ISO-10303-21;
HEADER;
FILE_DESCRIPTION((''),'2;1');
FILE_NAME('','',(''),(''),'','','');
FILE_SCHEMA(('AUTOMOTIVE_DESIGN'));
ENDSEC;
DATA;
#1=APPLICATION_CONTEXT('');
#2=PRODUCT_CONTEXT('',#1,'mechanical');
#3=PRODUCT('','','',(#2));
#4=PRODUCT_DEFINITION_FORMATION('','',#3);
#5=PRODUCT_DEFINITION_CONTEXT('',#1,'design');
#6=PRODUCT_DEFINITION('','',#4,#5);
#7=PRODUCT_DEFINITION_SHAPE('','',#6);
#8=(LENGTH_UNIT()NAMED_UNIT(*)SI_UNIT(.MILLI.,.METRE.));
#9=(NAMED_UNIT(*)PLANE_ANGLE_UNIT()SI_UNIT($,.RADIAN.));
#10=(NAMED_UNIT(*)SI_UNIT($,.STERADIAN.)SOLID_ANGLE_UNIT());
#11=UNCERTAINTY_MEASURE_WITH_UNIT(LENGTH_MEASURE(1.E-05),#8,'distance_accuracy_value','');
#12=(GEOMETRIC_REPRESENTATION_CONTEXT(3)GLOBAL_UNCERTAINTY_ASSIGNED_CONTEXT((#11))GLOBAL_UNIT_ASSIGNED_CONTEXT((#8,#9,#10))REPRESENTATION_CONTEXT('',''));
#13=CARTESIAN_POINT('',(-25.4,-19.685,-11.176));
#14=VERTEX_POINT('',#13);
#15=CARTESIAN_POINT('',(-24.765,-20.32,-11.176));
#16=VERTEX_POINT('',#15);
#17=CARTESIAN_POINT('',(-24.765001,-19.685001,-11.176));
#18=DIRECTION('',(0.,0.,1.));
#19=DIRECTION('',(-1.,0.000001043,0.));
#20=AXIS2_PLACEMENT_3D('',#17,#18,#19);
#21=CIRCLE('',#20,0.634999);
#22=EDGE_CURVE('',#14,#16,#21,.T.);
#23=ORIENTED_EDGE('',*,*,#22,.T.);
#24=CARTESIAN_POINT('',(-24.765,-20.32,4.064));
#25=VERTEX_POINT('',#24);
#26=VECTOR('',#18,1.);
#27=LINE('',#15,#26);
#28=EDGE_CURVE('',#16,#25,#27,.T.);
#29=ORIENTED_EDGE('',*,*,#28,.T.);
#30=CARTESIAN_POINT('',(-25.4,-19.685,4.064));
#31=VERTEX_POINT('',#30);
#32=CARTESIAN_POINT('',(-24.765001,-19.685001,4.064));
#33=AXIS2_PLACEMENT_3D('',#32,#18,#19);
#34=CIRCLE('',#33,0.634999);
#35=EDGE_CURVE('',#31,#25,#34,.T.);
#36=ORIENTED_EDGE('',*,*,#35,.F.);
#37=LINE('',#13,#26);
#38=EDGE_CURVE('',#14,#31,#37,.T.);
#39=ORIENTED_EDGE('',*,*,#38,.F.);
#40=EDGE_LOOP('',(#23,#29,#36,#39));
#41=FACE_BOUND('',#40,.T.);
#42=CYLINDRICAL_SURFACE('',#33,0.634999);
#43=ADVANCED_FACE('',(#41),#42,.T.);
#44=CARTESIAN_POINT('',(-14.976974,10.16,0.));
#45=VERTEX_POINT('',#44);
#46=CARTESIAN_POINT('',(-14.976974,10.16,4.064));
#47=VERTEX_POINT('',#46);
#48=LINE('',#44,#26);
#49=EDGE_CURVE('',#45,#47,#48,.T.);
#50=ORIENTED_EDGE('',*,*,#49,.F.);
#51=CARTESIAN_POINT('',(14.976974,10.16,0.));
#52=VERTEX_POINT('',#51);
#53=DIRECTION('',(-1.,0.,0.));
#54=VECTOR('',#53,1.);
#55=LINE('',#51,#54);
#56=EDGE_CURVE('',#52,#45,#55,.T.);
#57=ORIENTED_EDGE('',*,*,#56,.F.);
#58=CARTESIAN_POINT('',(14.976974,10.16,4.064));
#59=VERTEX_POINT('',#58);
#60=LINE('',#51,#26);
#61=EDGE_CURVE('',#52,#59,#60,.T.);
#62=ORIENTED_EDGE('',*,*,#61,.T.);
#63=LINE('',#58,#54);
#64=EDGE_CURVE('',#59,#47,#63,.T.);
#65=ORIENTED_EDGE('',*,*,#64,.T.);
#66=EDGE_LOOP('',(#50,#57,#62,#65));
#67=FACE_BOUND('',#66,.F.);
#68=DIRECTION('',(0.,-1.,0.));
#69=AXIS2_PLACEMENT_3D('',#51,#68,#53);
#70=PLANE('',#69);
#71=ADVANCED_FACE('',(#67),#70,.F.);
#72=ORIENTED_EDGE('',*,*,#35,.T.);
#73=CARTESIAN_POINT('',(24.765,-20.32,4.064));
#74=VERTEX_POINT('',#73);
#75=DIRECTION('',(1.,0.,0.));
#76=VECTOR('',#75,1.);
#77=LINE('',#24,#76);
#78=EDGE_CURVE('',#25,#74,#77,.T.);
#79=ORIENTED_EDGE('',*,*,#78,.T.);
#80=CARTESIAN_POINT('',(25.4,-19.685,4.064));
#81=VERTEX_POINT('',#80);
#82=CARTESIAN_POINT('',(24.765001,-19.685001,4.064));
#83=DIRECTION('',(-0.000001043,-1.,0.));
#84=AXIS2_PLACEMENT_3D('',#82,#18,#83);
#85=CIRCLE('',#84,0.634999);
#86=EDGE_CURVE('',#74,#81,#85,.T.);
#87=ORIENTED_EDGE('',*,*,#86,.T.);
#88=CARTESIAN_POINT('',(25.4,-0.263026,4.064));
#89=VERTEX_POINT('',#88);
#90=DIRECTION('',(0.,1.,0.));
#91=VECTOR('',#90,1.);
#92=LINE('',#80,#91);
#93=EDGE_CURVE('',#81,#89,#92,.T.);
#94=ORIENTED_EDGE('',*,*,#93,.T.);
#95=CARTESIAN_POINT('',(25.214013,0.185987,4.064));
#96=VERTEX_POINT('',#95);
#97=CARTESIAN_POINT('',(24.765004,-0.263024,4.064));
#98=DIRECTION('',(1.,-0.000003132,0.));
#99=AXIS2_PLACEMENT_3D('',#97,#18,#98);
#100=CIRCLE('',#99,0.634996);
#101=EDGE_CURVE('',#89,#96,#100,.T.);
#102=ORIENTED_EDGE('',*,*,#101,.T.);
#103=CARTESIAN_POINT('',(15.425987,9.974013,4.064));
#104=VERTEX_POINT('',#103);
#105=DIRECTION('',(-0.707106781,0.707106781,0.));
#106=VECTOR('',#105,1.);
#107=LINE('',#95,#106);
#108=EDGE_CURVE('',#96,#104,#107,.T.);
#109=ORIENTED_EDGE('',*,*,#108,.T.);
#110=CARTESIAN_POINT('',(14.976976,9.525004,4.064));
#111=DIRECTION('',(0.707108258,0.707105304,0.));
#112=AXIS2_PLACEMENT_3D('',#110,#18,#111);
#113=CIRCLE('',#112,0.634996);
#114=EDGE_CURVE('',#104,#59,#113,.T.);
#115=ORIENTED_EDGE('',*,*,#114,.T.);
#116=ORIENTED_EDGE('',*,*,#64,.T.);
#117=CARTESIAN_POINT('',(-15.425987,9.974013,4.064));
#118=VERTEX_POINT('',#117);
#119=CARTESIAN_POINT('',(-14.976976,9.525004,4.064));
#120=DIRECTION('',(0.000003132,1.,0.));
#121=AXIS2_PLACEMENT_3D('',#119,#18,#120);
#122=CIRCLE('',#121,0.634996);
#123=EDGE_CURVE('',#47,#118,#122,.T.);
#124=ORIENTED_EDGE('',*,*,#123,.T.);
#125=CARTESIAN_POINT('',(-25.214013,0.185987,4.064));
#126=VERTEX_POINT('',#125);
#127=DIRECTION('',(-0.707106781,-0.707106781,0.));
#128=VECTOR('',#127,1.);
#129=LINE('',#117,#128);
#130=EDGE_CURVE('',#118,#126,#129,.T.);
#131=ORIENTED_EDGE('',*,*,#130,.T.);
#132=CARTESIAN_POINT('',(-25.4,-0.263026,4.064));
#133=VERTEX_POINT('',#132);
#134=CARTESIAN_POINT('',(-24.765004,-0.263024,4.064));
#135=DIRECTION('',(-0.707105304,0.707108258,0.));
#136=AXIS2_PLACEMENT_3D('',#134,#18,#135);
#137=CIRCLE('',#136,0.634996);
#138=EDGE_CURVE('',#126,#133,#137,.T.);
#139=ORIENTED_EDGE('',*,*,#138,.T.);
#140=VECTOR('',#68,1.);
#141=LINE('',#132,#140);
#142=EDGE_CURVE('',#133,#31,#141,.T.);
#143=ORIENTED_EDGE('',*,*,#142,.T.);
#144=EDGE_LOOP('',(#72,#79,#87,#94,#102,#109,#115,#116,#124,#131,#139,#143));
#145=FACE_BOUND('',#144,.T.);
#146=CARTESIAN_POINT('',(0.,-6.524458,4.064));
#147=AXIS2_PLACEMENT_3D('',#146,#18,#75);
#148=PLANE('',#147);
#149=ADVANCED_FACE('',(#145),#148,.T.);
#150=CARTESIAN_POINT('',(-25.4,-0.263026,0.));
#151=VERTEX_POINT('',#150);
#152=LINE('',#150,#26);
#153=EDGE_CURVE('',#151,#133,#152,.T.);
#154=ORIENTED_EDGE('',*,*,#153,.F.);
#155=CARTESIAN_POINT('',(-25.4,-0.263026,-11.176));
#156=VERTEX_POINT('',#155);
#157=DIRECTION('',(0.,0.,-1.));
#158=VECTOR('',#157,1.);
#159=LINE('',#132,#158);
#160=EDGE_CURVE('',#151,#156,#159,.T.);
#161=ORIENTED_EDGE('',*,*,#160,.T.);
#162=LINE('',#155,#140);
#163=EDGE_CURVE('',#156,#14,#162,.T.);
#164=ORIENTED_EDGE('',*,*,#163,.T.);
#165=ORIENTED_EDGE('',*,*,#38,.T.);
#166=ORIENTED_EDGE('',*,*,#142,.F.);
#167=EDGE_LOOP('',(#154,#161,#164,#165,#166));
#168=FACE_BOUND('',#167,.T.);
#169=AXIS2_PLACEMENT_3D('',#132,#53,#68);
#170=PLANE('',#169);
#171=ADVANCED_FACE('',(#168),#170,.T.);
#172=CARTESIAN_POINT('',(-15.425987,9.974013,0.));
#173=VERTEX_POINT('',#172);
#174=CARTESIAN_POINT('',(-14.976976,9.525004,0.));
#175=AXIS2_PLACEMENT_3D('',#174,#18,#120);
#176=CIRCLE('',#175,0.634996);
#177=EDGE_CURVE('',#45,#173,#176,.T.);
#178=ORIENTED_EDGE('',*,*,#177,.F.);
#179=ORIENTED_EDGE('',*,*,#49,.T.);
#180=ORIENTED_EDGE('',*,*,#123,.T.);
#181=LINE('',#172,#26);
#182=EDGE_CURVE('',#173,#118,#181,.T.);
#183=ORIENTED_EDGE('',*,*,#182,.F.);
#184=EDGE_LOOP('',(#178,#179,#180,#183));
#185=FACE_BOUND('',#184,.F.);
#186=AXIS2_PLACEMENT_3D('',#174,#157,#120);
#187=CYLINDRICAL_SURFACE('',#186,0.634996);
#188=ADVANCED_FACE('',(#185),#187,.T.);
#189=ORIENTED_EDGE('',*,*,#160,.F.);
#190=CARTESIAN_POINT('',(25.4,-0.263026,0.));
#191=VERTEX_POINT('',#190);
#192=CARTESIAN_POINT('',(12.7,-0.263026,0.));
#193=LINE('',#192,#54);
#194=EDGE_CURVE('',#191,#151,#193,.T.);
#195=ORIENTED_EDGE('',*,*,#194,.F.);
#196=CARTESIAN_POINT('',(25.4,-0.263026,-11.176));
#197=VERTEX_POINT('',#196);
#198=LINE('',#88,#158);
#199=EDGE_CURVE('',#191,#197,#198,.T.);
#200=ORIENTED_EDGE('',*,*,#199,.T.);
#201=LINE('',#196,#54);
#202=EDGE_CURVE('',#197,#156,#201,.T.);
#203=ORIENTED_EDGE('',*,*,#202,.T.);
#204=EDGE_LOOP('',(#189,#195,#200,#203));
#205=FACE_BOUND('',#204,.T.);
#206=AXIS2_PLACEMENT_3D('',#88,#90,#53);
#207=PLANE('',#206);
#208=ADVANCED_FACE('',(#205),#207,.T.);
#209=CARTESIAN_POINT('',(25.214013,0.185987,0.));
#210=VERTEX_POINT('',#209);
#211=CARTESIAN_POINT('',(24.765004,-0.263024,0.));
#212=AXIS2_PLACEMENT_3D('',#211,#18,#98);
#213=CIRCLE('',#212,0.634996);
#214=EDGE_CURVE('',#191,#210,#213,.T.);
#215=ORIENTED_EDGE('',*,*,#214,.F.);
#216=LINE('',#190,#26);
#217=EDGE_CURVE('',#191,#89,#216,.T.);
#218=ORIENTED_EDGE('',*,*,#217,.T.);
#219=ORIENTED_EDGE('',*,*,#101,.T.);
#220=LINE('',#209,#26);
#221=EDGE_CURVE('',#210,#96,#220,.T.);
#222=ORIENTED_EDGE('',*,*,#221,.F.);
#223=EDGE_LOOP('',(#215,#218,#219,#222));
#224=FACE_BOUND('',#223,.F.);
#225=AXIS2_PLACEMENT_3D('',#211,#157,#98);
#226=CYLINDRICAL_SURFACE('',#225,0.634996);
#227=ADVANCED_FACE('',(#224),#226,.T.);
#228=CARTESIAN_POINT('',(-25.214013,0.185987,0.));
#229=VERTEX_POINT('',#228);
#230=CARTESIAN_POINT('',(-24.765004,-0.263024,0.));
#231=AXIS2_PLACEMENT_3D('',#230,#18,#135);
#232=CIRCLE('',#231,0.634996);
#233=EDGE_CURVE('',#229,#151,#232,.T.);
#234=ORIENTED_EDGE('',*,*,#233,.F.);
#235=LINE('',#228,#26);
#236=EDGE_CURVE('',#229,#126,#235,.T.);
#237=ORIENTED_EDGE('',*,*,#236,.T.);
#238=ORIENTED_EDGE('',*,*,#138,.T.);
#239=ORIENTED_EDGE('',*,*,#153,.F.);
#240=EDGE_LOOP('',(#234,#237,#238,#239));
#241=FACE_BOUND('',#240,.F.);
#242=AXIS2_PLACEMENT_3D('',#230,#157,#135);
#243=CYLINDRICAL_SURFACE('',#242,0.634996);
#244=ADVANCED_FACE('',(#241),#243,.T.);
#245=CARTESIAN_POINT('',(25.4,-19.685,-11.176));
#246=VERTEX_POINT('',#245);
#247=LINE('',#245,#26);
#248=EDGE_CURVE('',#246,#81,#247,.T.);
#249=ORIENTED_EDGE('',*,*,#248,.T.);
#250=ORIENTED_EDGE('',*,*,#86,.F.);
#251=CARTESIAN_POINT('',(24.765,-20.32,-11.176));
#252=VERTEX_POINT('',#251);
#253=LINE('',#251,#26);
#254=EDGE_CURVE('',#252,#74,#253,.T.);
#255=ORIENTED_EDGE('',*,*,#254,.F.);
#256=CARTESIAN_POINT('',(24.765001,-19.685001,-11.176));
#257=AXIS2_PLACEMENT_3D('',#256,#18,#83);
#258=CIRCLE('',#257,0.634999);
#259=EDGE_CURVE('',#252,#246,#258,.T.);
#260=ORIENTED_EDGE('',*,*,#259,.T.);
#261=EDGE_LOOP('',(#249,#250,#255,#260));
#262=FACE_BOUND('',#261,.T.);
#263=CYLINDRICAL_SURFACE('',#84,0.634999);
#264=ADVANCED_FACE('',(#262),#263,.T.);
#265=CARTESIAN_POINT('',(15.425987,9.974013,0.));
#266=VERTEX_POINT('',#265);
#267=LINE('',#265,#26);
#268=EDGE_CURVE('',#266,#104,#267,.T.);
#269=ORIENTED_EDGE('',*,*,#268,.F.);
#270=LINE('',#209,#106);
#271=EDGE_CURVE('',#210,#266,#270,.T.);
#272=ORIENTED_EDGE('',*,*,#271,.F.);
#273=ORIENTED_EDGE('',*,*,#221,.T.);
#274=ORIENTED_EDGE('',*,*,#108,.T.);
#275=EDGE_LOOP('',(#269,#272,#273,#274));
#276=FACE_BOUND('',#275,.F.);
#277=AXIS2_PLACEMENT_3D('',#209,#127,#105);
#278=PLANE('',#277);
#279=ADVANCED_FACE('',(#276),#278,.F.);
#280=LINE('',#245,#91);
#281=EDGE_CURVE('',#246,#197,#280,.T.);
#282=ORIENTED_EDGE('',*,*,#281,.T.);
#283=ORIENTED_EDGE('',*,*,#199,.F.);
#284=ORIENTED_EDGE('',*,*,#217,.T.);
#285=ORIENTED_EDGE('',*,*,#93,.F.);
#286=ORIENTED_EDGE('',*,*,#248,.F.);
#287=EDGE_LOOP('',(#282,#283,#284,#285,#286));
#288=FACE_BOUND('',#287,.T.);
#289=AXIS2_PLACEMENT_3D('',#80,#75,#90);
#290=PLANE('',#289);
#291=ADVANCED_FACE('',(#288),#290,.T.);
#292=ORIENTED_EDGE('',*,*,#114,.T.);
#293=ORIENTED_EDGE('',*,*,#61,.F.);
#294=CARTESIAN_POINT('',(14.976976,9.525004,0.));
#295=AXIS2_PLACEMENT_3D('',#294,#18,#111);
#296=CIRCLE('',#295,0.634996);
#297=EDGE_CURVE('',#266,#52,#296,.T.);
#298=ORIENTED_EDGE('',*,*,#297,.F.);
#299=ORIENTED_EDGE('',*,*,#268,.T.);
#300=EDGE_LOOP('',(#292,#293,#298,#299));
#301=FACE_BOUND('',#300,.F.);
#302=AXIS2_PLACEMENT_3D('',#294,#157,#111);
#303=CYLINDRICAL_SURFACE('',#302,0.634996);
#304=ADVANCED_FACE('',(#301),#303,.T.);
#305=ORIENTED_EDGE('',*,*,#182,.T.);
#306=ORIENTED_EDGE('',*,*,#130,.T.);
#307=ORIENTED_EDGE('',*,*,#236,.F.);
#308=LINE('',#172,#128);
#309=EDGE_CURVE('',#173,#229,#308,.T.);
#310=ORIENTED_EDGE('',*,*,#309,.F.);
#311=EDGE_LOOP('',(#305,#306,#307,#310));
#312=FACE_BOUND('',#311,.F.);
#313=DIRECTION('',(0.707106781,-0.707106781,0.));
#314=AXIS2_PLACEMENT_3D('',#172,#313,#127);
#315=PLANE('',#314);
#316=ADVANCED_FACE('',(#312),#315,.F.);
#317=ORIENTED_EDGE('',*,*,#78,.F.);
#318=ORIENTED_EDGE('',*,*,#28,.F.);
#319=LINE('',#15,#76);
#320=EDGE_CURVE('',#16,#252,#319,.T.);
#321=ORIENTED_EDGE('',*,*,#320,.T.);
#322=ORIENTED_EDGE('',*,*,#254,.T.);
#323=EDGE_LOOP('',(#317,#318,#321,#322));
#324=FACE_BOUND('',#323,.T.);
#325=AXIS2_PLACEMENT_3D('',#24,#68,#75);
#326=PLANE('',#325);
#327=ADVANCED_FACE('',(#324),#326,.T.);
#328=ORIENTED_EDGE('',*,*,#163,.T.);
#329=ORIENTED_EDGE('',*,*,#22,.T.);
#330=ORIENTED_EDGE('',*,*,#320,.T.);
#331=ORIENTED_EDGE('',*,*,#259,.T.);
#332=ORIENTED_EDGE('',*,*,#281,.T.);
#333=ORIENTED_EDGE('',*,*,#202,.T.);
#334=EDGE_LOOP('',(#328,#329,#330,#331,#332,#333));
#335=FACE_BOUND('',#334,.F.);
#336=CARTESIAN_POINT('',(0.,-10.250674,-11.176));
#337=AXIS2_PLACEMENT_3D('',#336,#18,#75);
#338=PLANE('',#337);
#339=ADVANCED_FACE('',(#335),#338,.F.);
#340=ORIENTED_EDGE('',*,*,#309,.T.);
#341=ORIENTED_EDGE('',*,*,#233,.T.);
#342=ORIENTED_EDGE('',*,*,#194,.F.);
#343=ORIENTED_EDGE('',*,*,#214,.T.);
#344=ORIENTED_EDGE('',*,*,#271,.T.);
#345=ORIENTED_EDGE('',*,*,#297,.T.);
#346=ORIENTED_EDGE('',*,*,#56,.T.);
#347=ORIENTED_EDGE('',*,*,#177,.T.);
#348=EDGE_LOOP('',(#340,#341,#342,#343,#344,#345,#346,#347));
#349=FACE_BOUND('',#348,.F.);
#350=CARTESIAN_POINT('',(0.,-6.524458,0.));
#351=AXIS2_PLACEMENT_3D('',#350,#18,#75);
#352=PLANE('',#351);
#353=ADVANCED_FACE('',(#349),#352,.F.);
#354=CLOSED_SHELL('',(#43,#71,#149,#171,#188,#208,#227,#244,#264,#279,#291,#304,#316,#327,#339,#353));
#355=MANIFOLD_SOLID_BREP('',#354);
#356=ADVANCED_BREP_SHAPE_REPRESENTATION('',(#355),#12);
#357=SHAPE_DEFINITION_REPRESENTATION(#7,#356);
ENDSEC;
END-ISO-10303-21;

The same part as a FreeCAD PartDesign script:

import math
import FreeCAD as App
import Part
import Sketcher

V = App.Vector
Q = App.Units.Quantity

doc = App.newDocument("Part")
body = doc.addObject("PartDesign::Body", "Body")

# Sketch on XY plane
sketch1 = doc.addObject("Sketcher::SketchObject", "Sketch")
body.addObject(sketch1)
sketch1.AttachmentSupport = (doc.XY_Plane, [""])
sketch1.MapMode = "FlatFace"
sketch1.addGeometry([
    Part.LineSegment(V(14.976974, 10.16, 0), V(-14.976974, 10.16, 0)),  # 0
    Part.ArcOfCircle(Part.Circle(V(-14.976976, 9.525004, 0), V(0, 0, 1), 0.634996), math.radians(89.999821), math.radians(135.00012)),  # 1
    Part.LineSegment(V(-15.425987, 9.974013, 0), V(-25.214013, 0.185987, 0)),  # 2
    Part.ArcOfCircle(Part.Circle(V(-24.765004, -0.263024, 0), V(0, 0, 1), 0.634996), math.radians(134.99988), math.radians(180.000179)),  # 3
    Part.LineSegment(V(-25.4, -0.263026, 0), V(-25.4, -19.685, 0)),  # 4
    Part.ArcOfCircle(Part.Circle(V(-24.765001, -19.685001, 0), V(0, 0, 1), 0.634999), math.radians(179.99994), math.radians(270.00006)),  # 5
    Part.LineSegment(V(-24.765, -20.32, 0), V(24.765, -20.32, 0)),  # 6
    Part.ArcOfCircle(Part.Circle(V(24.765001, -19.685001, 0), V(0, 0, 1), 0.634999), math.radians(-90.00006), math.radians(0.00006)),  # 7
    Part.LineSegment(V(25.4, -19.685, 0), V(25.4, -0.263026, 0)),  # 8
    Part.ArcOfCircle(Part.Circle(V(24.765004, -0.263024, 0), V(0, 0, 1), 0.634996), math.radians(-0.000179), math.radians(45.00012)),  # 9
    Part.LineSegment(V(25.214013, 0.185987, 0), V(15.425987, 9.974013, 0)),  # 10
    Part.ArcOfCircle(Part.Circle(V(14.976976, 9.525004, 0), V(0, 0, 1), 0.634996), math.radians(44.99988), math.radians(90.000179)),  # 11
], False)
sketch1.addConstraint([
    Sketcher.Constraint("Coincident", 0, 2, 1, 1),
    Sketcher.Constraint("Coincident", 1, 2, 2, 1),
    Sketcher.Constraint("Coincident", 2, 2, 3, 1),
    Sketcher.Constraint("Coincident", 3, 2, 4, 1),
    Sketcher.Constraint("Tangent", 4, 2, 5, 1),
    Sketcher.Constraint("Tangent", 5, 2, 6, 1),
    Sketcher.Constraint("Tangent", 6, 2, 7, 1),
    Sketcher.Constraint("Tangent", 7, 2, 8, 1),
    Sketcher.Constraint("Coincident", 8, 2, 9, 1),
    Sketcher.Constraint("Coincident", 9, 2, 10, 1),
    Sketcher.Constraint("Coincident", 10, 2, 11, 1),
    Sketcher.Constraint("Coincident", 11, 2, 0, 1),
    Sketcher.Constraint("Horizontal", 0),
    Sketcher.Constraint("Vertical", 4),
    Sketcher.Constraint("Horizontal", 6),
    Sketcher.Constraint("Vertical", 8),
    Sketcher.Constraint("Equal", 1, 3),
    Sketcher.Constraint("Equal", 5, 7),
    Sketcher.Constraint("Equal", 3, 9),
    Sketcher.Constraint("Equal", 9, 11),
    Sketcher.Constraint("Symmetric", 3, 3, 9, 3, -2),
    Sketcher.Constraint("Symmetric", 1, 2, 10, 2, -2),
    Sketcher.Constraint("Perpendicular", 2, 10),
    Sketcher.Constraint("Horizontal", 9, 3, 3, 2),
    Sketcher.Constraint("Horizontal", 3, 2, 8, 2),
    Sketcher.Constraint("Horizontal", 2, 2, 9, 2),
    Sketcher.Constraint("Vertical", 1, 3, 0, 2),
    Sketcher.Constraint("DistanceX", 3, 2, -1, 1, Q("1 in")),
    Sketcher.Constraint("Radius", 1, Q("0.0249998 in")),
    Sketcher.Constraint("Radius", 5, Q("0.025 in")),
    Sketcher.Constraint("DistanceY", -1, 1, 0, 2, Q("0.4 in")),
    Sketcher.Constraint("DistanceY", 5, 2, -1, 1, Q("0.8 in")),
    Sketcher.Constraint("DistanceX", 0, 2, 0, 1, 29.953948),
    Sketcher.Constraint("Distance", 2, 13.842359),
    Sketcher.Constraint("DistanceY", 4, 2, 4, 1, 19.421974),
    Sketcher.Constraint("DistanceX", 1, 2, 1, 3, 0.449011),
])
pad1 = doc.addObject("PartDesign::Pad", "Pad")
body.addObject(pad1)
pad1.Profile = sketch1
pad1.Length = Q("0.16 in")

# Sketch on XY plane
sketch2 = doc.addObject("Sketcher::SketchObject", "Sketch001")
body.addObject(sketch2)
sketch2.AttachmentSupport = (doc.XY_Plane, [""])
sketch2.MapMode = "FlatFace"
sketch2.AttachmentOffset = App.Placement(V(0, 0, 0.16 * 25.4), App.Rotation())
sketch2.addGeometry([
    Part.LineSegment(V(-25.4, -0.263026, 0), V(-25.4, -19.685, 0)),  # 0
    Part.ArcOfCircle(Part.Circle(V(-24.765001, -19.685001, 0), V(0, 0, 1), 0.634999), math.radians(179.99994), math.radians(270.00006)),  # 1
    Part.LineSegment(V(-24.765, -20.32, 0), V(24.765, -20.32, 0)),  # 2
    Part.ArcOfCircle(Part.Circle(V(24.765001, -19.685001, 0), V(0, 0, 1), 0.634999), math.radians(-90.00006), math.radians(0.00006)),  # 3
    Part.LineSegment(V(25.4, -19.685, 0), V(25.4, -0.263026, 0)),  # 4
    Part.LineSegment(V(25.4, -0.263026, 0), V(-25.4, -0.263026, 0)),  # 5
], False)
sketch2.addConstraint([
    Sketcher.Constraint("Tangent", 0, 2, 1, 1),
    Sketcher.Constraint("Tangent", 1, 2, 2, 1),
    Sketcher.Constraint("Tangent", 2, 2, 3, 1),
    Sketcher.Constraint("Tangent", 3, 2, 4, 1),
    Sketcher.Constraint("Coincident", 4, 2, 5, 1),
    Sketcher.Constraint("Coincident", 5, 2, 0, 1),
    Sketcher.Constraint("Vertical", 0),
    Sketcher.Constraint("Horizontal", 2),
    Sketcher.Constraint("Vertical", 4),
    Sketcher.Constraint("Horizontal", 5),
    Sketcher.Constraint("Equal", 1, 3),
    Sketcher.Constraint("DistanceX", 5, 2, 5, 1, Q("2 in")),
    Sketcher.Constraint("DistanceX", 0, 2, -1, 1, Q("1 in")),
    Sketcher.Constraint("Radius", 1, Q("0.025 in")),
    Sketcher.Constraint("DistanceY", 1, 2, -1, 1, Q("0.8 in")),
    Sketcher.Constraint("DistanceY", 0, 2, 0, 1, 19.421974),
])
pad2 = doc.addObject("PartDesign::Pad", "Pad001")
body.addObject(pad2)
pad2.Profile = sketch2
pad2.Length = Q("0.6 in")
pad2.Reversed = True

# Sketch on XY plane
sketch3 = doc.addObject("Sketcher::SketchObject", "Sketch002")
body.addObject(sketch3)
sketch3.AttachmentSupport = (doc.XY_Plane, [""])
sketch3.MapMode = "FlatFace"
sketch3.AttachmentOffset = App.Placement(V(0, 0, 0.16 * 25.4), App.Rotation())
sketch3.addGeometry([
    Part.LineSegment(V(-25.4, -0.263026, 0), V(-25.4, -19.685, 0)),  # 0
    Part.ArcOfCircle(Part.Circle(V(-24.765001, -19.685001, 0), V(0, 0, 1), 0.634999), math.radians(179.99994), math.radians(270.00006)),  # 1
    Part.LineSegment(V(-24.765, -20.32, 0), V(24.765, -20.32, 0)),  # 2
    Part.ArcOfCircle(Part.Circle(V(24.765001, -19.685001, 0), V(0, 0, 1), 0.634999), math.radians(-90.00006), math.radians(0.00006)),  # 3
    Part.LineSegment(V(25.4, -19.685, 0), V(25.4, -0.263026, 0)),  # 4
    Part.LineSegment(V(25.4, -0.263026, 0), V(-25.4, -0.263026, 0)),  # 5
], False)
sketch3.addConstraint([
    Sketcher.Constraint("Tangent", 0, 2, 1, 1),
    Sketcher.Constraint("Tangent", 1, 2, 2, 1),
    Sketcher.Constraint("Tangent", 2, 2, 3, 1),
    Sketcher.Constraint("Tangent", 3, 2, 4, 1),
    Sketcher.Constraint("Coincident", 4, 2, 5, 1),
    Sketcher.Constraint("Coincident", 5, 2, 0, 1),
    Sketcher.Constraint("Vertical", 0),
    Sketcher.Constraint("Horizontal", 2),
    Sketcher.Constraint("Vertical", 4),
    Sketcher.Constraint("Horizontal", 5),
    Sketcher.Constraint("Equal", 1, 3),
    Sketcher.Constraint("DistanceX", 5, 2, 5, 1, Q("2 in")),
    Sketcher.Constraint("DistanceX", 0, 2, -1, 1, Q("1 in")),
    Sketcher.Constraint("Radius", 1, Q("0.025 in")),
    Sketcher.Constraint("DistanceY", 1, 2, -1, 1, Q("0.8 in")),
    Sketcher.Constraint("DistanceY", 0, 2, 0, 1, 19.421974),
])
pad3 = doc.addObject("PartDesign::Pad", "Pad002")
body.addObject(pad3)
pad3.Profile = sketch3
pad3.Length = Q("0.6 in")
pad3.Reversed = True

doc.recompute()
